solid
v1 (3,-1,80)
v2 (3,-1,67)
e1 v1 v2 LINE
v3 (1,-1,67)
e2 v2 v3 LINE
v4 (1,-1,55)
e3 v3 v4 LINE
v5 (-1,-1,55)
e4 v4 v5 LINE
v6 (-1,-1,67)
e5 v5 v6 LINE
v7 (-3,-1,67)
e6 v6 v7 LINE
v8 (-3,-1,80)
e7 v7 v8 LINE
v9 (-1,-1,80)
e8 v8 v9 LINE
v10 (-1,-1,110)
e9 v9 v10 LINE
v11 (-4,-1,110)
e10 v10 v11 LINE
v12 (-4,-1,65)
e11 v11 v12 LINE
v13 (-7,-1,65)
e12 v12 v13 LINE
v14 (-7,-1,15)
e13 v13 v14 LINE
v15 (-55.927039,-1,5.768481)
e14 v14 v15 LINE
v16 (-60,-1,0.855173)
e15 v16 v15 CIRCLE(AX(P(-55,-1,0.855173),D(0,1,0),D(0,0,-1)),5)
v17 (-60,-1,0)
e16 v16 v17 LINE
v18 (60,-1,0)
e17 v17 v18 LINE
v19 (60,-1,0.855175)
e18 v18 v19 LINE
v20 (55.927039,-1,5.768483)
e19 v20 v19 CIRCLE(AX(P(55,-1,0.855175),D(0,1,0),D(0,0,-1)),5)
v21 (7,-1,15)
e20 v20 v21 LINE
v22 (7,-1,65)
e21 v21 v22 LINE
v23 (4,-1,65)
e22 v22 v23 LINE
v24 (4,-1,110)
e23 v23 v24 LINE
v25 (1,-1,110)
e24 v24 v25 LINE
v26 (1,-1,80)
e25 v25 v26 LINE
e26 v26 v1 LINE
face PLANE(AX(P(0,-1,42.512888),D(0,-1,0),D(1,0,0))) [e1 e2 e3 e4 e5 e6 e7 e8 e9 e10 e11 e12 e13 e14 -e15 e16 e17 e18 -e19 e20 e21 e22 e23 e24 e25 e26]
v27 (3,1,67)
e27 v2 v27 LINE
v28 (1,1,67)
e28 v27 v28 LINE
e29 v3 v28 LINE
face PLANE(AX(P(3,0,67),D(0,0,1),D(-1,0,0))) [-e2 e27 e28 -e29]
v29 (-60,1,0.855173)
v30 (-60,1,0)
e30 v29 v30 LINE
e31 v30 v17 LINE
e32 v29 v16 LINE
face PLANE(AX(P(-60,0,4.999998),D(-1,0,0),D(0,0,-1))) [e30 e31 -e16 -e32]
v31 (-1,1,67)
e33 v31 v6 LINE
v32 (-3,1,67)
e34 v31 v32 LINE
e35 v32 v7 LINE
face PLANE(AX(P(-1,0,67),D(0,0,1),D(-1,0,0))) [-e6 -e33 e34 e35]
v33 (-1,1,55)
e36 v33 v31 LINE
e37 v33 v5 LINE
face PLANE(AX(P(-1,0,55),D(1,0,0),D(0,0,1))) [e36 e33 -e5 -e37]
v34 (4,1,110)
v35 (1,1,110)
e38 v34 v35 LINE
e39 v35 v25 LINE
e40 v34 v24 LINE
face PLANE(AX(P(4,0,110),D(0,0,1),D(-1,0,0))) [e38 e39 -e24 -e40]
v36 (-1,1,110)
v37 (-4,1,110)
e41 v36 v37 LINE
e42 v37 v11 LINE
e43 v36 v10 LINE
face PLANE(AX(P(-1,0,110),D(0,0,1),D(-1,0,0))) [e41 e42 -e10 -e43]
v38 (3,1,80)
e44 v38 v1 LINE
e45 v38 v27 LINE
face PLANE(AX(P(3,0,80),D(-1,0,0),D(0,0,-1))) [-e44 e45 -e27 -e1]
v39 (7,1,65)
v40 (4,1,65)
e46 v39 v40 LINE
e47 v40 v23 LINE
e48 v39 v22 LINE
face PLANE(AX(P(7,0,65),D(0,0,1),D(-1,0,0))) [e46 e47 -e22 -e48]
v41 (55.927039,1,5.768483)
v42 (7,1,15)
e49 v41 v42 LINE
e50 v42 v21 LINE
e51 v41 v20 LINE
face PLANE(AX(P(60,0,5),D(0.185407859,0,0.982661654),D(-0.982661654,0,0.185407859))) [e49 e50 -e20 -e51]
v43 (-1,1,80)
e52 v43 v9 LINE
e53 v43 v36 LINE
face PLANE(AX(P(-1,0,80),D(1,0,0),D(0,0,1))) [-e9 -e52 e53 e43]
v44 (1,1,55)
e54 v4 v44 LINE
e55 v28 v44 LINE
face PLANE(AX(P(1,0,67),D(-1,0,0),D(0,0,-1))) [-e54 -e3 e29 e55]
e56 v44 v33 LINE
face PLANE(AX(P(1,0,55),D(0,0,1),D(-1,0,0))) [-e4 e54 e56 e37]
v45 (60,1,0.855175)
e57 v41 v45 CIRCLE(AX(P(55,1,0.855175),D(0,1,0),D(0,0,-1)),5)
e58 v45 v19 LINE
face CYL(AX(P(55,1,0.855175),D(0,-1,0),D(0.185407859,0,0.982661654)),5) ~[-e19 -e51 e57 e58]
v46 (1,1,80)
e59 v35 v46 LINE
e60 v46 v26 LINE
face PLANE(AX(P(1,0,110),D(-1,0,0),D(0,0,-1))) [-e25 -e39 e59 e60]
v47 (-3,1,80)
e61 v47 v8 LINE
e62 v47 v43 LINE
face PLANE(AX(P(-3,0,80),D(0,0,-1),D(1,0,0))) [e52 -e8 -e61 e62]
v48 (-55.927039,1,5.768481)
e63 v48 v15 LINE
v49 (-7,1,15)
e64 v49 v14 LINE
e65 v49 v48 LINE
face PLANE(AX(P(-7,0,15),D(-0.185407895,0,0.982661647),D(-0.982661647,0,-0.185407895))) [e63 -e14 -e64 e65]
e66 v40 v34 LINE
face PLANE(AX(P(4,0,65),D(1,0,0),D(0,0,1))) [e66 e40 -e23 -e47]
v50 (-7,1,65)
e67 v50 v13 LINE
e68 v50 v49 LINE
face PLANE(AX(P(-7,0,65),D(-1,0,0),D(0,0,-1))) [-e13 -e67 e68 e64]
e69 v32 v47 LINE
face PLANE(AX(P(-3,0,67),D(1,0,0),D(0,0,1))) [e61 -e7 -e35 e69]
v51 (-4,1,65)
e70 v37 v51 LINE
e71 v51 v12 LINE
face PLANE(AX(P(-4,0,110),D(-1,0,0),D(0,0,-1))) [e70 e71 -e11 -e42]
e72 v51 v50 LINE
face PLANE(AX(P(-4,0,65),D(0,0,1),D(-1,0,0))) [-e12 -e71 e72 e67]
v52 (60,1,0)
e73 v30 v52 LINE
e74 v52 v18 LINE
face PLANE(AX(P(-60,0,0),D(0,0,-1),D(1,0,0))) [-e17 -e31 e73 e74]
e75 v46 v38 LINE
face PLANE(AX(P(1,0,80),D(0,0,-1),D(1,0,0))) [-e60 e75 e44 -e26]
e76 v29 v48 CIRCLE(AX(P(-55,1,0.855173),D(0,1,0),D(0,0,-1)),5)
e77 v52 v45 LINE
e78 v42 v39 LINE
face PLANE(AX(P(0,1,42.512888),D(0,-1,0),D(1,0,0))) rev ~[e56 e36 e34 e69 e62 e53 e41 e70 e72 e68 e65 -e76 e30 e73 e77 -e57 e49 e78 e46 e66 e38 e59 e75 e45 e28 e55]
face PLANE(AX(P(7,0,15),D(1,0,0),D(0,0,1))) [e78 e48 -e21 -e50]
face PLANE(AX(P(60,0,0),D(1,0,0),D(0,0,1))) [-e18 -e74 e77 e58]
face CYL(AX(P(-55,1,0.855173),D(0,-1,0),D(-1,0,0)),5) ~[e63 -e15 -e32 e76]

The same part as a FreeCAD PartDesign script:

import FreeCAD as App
import Part
import Sketcher
from FreeCAD import Vector
Q = App.Units.Quantity


def edges_at(feature, points):
    """Names of the edges that pass closest to the given points."""
    edges = feature.Shape.Edges
    near = lambda p: min(range(len(edges)), key=lambda i: edges[i].distToShape(Part.Vertex(*p))[0])
    return sorted({f"Edge{near(p) + 1}" for p in points})

doc = App.newDocument("Part")
body = doc.addObject("PartDesign::Body", "Body")

# Sketch on XZ plane
sketch1 = body.newObject("Sketcher::SketchObject", "Sketch")
sketch1.AttachmentSupport = (doc.getObject("XZ_Plane"), [""])
sketch1.MapMode = "FlatFace"
sketch1.addGeometry(Part.LineSegment(Vector(1, 55, 0), Vector(-1, 55, 0)), False)
sketch1.addGeometry(Part.LineSegment(Vector(-1, 55, 0), Vector(-1, 67, 0)), False)
sketch1.addGeometry(Part.LineSegment(Vector(-1, 67, 0), Vector(-3, 67, 0)), False)
sketch1.addGeometry(Part.LineSegment(Vector(-3, 67, 0), Vector(-3, 80, 0)), False)
sketch1.addGeometry(Part.LineSegment(Vector(-3, 80, 0), Vector(-1, 80, 0)), False)
sketch1.addGeometry(Part.LineSegment(Vector(-1, 80, 0), Vector(-1, 110, 0)), False)
sketch1.addGeometry(Part.LineSegment(Vector(-1, 110, 0), Vector(-4, 110, 0)), False)
sketch1.addGeometry(Part.LineSegment(Vector(-4, 110, 0), Vector(-4, 65, 0)), False)
sketch1.addGeometry(Part.LineSegment(Vector(-4, 65, 0), Vector(-7, 65, 0)), False)
sketch1.addGeometry(Part.LineSegment(Vector(-7, 65, 0), Vector(-7, 15, 0)), False)
sketch1.addGeometry(Part.LineSegment(Vector(-7, 15, 0), Vector(-60, 4.999998, 0)), False)
sketch1.addGeometry(Part.LineSegment(Vector(-60, 4.999998, 0), Vector(-60, 0, 0)), False)
sketch1.addGeometry(Part.LineSegment(Vector(-60, 0, 0), Vector(60, 0, 0)), False)
sketch1.addGeometry(Part.LineSegment(Vector(60, 0, 0), Vector(60, 5, 0)), False)
sketch1.addGeometry(Part.LineSegment(Vector(60, 5, 0), Vector(7, 15, 0)), False)
sketch1.addGeometry(Part.LineSegment(Vector(7, 15, 0), Vector(7, 65, 0)), False)
sketch1.addGeometry(Part.LineSegment(Vector(7, 65, 0), Vector(4, 65, 0)), False)
sketch1.addGeometry(Part.LineSegment(Vector(4, 65, 0), Vector(4, 110, 0)), False)
sketch1.addGeometry(Part.LineSegment(Vector(4, 110, 0), Vector(1, 110, 0)), False)
sketch1.addGeometry(Part.LineSegment(Vector(1, 110, 0), Vector(1, 80, 0)), False)
sketch1.addGeometry(Part.LineSegment(Vector(1, 80, 0), Vector(3, 80, 0)), False)
sketch1.addGeometry(Part.LineSegment(Vector(3, 80, 0), Vector(3, 67, 0)), False)
sketch1.addGeometry(Part.LineSegment(Vector(3, 67, 0), Vector(1, 67, 0)), False)
sketch1.addGeometry(Part.LineSegment(Vector(1, 67, 0), Vector(1, 55, 0)), False)
sketch1.addConstraint(Sketcher.Constraint("Coincident", 0, 2, 1, 1))
sketch1.addConstraint(Sketcher.Constraint("Coincident", 1, 2, 2, 1))
sketch1.addConstraint(Sketcher.Constraint("Coincident", 2, 2, 3, 1))
sketch1.addConstraint(Sketcher.Constraint("Coincident", 3, 2, 4, 1))
sketch1.addConstraint(Sketcher.Constraint("Coincident", 4, 2, 5, 1))
sketch1.addConstraint(Sketcher.Constraint("Coincident", 5, 2, 6, 1))
sketch1.addConstraint(Sketcher.Constraint("Coincident", 6, 2, 7, 1))
sketch1.addConstraint(Sketcher.Constraint("Coincident", 7, 2, 8, 1))
sketch1.addConstraint(Sketcher.Constraint("Coincident", 8, 2, 9, 1))
sketch1.addConstraint(Sketcher.Constraint("Coincident", 9, 2, 10, 1))
sketch1.addConstraint(Sketcher.Constraint("Coincident", 10, 2, 11, 1))
sketch1.addConstraint(Sketcher.Constraint("Coincident", 11, 2, 12, 1))
sketch1.addConstraint(Sketcher.Constraint("Coincident", 12, 2, 13, 1))
sketch1.addConstraint(Sketcher.Constraint("Coincident", 13, 2, 14, 1))
sketch1.addConstraint(Sketcher.Constraint("Coincident", 14, 2, 15, 1))
sketch1.addConstraint(Sketcher.Constraint("Coincident", 15, 2, 16, 1))
sketch1.addConstraint(Sketcher.Constraint("Coincident", 16, 2, 17, 1))
sketch1.addConstraint(Sketcher.Constraint("Coincident", 17, 2, 18, 1))
sketch1.addConstraint(Sketcher.Constraint("Coincident", 18, 2, 19, 1))
sketch1.addConstraint(Sketcher.Constraint("Coincident", 19, 2, 20, 1))
sketch1.addConstraint(Sketcher.Constraint("Coincident", 20, 2, 21, 1))
sketch1.addConstraint(Sketcher.Constraint("Coincident", 21, 2, 22, 1))
sketch1.addConstraint(Sketcher.Constraint("Coincident", 22, 2, 23, 1))
sketch1.addConstraint(Sketcher.Constraint("Coincident", 23, 2, 0, 1))
sketch1.addConstraint(Sketcher.Constraint("Horizontal", 0))
sketch1.addConstraint(Sketcher.Constraint("Vertical", 1))
sketch1.addConstraint(Sketcher.Constraint("Horizontal", 2))
sketch1.addConstraint(Sketcher.Constraint("Vertical", 3))
sketch1.addConstraint(Sketcher.Constraint("Horizontal", 4))
sketch1.addConstraint(Sketcher.Constraint("Vertical", 5))
sketch1.addConstraint(Sketcher.Constraint("Horizontal", 6))
sketch1.addConstraint(Sketcher.Constraint("Vertical", 7))
sketch1.addConstraint(Sketcher.Constraint("Horizontal", 8))
sketch1.addConstraint(Sketcher.Constraint("Vertical", 9))
sketch1.addConstraint(Sketcher.Constraint("Vertical", 11))
sketch1.addConstraint(Sketcher.Constraint("Horizontal", 12))
sketch1.addConstraint(Sketcher.Constraint("Vertical", 13))
sketch1.addConstraint(Sketcher.Constraint("Vertical", 15))
sketch1.addConstraint(Sketcher.Constraint("Horizontal", 16))
sketch1.addConstraint(Sketcher.Constraint("Vertical", 17))
sketch1.addConstraint(Sketcher.Constraint("Horizontal", 18))
sketch1.addConstraint(Sketcher.Constraint("Vertical", 19))
sketch1.addConstraint(Sketcher.Constraint("Horizontal", 20))
sketch1.addConstraint(Sketcher.Constraint("Vertical", 21))
sketch1.addConstraint(Sketcher.Constraint("Horizontal", 22))
sketch1.addConstraint(Sketcher.Constraint("Vertical", 23))
sketch1.addConstraint(Sketcher.Constraint("Symmetric", 11, 2, 12, 2, -1, 1))
sketch1.addConstraint(Sketcher.Constraint("Symmetric", 9, 2, 14, 2, -2))
sketch1.addConstraint(Sketcher.Constraint("Symmetric", 7, 2, 16, 2, -2))
sketch1.addConstraint(Sketcher.Constraint("Symmetric", 5, 2, 18, 2, -2))
sketch1.addConstraint(Sketcher.Constraint("Symmetric", 3, 2, 20, 2, -2))
sketch1.addConstraint(Sketcher.Constraint("Symmetric", 1, 2, 22, 2, -2))
sketch1.addConstraint(Sketcher.Constraint("Vertical", 1, 2, 4, 2))
sketch1.addConstraint(Sketcher.Constraint("Equal", 0, 2))
sketch1.addConstraint(Sketcher.Constraint("Equal", 6, 8))
sketch1.addConstraint(Sketcher.Constraint("Equal", 10, 14))
sketch1.addConstraint(Sketcher.Constraint("DistanceX", 0, 2, 0, 1, Q("2 mm")))
sketch1.addConstraint(Sketcher.Constraint("DistanceX", 6, 2, 6, 1, Q("3 mm")))
sketch1.addConstraint(Sketcher.Constraint("DistanceX", 12, 1, 12, 2, Q("120 mm")))
sketch1.addConstraint(Sketcher.Constraint("DistanceY", 1, 1, 1, 2, Q("12 mm")))
sketch1.addConstraint(Sketcher.Constraint("DistanceY", 3, 1, 3, 2, Q("13 mm")))
sketch1.addConstraint(Sketcher.Constraint("DistanceY", 5, 1, 5, 2, Q("30 mm")))
sketch1.addConstraint(Sketcher.Constraint("DistanceY", 7, 2, 7, 1, Q("45 mm")))
sketch1.addConstraint(Sketcher.Constraint("DistanceY", 9, 2, 9, 1, Q("50 mm")))
sketch1.addConstraint(Sketcher.Constraint("DistanceY", 13, 1, 13, 2, Q("5 mm")))
sketch1.addConstraint(Sketcher.Constraint("DistanceY", -1, 1, 0, 2, Q("55 mm")))
pad1 = body.newObject("PartDesign::Pad", "Pad")
pad1.Profile = sketch1
pad1.Type = "TwoLengths"
pad1.Length = 1
pad1.Length2 = 1
doc.recompute()

fillet = body.newObject("PartDesign::Fillet", "Fillet")
fillet.Base = (pad1, edges_at(pad1, [(-60, 0, 5), (60, 0, 5)]))
fillet.Radius = 5

doc.recompute()
